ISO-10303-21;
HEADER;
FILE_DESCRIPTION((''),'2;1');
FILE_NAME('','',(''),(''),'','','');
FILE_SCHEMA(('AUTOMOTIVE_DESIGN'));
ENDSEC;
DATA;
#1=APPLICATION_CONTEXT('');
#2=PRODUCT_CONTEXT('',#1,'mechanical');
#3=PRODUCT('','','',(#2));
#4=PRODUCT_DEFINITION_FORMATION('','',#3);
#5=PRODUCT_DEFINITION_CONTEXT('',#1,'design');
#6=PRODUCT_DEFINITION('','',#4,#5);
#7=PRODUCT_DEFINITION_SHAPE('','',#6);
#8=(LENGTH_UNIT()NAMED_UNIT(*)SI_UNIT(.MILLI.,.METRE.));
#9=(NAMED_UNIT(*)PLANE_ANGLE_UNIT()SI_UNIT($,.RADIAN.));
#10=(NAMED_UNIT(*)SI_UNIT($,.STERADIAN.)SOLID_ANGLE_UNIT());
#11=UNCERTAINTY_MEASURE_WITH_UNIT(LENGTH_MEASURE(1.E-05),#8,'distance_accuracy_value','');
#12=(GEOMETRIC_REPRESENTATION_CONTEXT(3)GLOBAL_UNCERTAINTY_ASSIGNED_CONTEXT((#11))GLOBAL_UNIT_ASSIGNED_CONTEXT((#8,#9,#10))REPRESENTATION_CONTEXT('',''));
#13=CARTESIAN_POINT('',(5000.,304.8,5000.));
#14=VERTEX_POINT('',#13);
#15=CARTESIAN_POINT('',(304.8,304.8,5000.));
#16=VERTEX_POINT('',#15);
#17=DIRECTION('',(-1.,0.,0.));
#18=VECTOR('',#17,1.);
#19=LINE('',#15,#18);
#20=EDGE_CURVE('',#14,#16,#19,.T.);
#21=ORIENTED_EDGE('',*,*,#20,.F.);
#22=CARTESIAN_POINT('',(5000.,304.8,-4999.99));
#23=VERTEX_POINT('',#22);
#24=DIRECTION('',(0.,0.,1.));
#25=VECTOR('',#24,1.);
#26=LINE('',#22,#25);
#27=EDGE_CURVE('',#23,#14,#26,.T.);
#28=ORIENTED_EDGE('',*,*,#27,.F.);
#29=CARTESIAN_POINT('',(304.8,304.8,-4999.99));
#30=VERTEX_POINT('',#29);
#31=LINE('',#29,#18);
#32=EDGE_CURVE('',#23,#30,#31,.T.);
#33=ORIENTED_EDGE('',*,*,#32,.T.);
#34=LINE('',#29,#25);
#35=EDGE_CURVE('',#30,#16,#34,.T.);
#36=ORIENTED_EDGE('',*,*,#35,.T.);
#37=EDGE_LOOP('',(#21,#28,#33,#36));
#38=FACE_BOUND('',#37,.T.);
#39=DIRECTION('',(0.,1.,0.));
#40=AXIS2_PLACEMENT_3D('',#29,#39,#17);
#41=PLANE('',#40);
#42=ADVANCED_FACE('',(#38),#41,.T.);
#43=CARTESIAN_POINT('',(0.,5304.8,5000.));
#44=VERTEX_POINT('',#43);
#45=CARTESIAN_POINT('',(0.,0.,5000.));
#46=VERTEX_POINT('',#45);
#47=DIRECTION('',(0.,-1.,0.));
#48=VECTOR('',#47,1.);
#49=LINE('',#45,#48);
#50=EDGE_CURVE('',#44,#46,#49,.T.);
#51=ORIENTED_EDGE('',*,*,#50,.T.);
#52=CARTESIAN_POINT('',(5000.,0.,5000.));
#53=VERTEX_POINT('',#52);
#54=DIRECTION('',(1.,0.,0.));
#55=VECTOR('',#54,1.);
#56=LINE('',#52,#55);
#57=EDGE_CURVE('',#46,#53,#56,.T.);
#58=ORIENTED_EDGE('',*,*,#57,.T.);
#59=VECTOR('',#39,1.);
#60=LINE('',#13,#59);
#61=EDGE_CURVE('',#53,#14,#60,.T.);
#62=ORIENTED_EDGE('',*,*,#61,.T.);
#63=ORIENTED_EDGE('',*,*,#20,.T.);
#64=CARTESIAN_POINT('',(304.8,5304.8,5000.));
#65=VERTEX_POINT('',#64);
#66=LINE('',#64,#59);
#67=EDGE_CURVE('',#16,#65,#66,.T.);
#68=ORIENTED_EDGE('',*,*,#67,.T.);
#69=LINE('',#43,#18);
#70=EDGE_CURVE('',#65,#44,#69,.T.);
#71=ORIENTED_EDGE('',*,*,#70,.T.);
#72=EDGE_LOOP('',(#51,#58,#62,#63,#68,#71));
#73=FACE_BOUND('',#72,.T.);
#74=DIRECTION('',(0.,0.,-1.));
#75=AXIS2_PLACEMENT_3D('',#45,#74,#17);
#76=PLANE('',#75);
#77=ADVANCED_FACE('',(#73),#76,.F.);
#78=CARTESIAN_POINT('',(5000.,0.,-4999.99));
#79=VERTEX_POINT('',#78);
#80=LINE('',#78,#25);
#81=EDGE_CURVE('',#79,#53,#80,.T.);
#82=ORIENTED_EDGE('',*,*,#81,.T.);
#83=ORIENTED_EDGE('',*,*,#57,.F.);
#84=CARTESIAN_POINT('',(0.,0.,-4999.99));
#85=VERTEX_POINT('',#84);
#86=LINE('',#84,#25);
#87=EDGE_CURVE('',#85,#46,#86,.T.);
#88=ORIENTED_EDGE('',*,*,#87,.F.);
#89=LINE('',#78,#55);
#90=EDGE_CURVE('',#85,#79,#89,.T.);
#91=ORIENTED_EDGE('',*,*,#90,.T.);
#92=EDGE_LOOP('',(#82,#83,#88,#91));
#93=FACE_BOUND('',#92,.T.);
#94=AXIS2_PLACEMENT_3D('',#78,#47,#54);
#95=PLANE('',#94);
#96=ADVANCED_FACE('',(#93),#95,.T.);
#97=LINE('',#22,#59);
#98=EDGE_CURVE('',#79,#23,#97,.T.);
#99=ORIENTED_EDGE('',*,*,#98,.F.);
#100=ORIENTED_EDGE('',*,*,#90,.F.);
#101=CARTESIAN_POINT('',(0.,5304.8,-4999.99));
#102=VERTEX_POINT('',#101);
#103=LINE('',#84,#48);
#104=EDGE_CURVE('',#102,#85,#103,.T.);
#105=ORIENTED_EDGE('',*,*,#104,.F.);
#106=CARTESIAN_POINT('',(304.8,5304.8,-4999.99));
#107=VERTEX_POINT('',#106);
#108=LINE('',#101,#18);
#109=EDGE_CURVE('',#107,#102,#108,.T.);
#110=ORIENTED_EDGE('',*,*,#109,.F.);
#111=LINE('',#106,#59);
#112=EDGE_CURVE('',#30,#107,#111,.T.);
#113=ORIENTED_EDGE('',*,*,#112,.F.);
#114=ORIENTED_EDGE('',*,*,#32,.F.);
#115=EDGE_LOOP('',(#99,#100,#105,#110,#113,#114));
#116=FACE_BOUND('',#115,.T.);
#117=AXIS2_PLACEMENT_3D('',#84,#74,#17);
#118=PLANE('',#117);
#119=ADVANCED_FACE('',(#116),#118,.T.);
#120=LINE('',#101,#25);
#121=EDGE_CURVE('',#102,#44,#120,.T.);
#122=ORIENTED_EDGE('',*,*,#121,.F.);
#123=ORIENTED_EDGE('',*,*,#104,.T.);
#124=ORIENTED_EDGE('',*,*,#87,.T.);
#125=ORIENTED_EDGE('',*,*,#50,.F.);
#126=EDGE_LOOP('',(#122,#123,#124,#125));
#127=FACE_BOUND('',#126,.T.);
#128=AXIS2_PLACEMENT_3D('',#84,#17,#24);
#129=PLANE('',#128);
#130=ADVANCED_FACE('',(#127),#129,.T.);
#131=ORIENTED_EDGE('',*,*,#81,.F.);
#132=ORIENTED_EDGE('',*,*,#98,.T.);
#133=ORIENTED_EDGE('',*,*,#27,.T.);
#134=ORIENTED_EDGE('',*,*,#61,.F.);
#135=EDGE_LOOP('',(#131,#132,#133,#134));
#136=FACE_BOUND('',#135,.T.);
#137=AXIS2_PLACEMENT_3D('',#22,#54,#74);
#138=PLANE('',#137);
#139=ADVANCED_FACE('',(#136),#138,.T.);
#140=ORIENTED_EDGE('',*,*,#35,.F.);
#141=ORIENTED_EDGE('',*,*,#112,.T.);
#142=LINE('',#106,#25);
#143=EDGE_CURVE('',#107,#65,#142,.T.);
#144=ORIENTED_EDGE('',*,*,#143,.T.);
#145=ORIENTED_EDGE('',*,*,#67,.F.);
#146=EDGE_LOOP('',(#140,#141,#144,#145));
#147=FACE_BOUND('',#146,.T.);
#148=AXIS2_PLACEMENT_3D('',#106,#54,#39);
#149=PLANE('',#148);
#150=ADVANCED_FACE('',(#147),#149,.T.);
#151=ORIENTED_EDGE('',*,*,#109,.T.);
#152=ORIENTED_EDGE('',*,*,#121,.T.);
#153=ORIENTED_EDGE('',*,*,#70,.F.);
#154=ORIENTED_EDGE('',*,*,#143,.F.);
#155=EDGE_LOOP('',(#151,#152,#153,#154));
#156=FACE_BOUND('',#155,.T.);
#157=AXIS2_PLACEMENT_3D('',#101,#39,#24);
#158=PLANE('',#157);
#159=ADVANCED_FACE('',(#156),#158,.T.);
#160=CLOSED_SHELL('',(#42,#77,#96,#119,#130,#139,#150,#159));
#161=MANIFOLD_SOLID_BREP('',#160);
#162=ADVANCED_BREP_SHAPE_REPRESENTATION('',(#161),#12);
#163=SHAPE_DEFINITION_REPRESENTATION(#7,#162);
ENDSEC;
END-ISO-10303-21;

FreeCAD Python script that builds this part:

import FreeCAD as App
import Part
import Sketcher
from FreeCAD import Vector

doc = App.newDocument("Part")
body = doc.addObject("PartDesign::Body", "Body")

sketch1 = body.newObject("Sketcher::SketchObject", "Sketch")
sketch1.AttachmentSupport = (doc.getObject("XY_Plane"), [""])
sketch1.MapMode = "FlatFace"
sketch1.addGeometry(Part.LineSegment(Vector(0, 5305, 0), Vector(0, 0, 0)), False)
sketch1.addGeometry(Part.LineSegment(Vector(0, 0, 0), Vector(5000, 0, 0)), False)
sketch1.addGeometry(Part.LineSegment(Vector(5000, 0, 0), Vector(5000, 305, 0)), False)
sketch1.addGeometry(Part.LineSegment(Vector(5000, 305, 0), Vector(305, 305, 0)), False)
sketch1.addGeometry(Part.LineSegment(Vector(305, 305, 0), Vector(305, 5305, 0)), False)
sketch1.addGeometry(Part.LineSegment(Vector(305, 5305, 0), Vector(0, 5305, 0)), False)
sketch1.addConstraint(Sketcher.Constraint("Coincident", 0, 2, 1, 1))
sketch1.addConstraint(Sketcher.Constraint("Coincident", 1, 2, 2, 1))
sketch1.addConstraint(Sketcher.Constraint("Coincident", 2, 2, 3, 1))
sketch1.addConstraint(Sketcher.Constraint("Coincident", 3, 2, 4, 1))
sketch1.addConstraint(Sketcher.Constraint("Coincident", 4, 2, 5, 1))
sketch1.addConstraint(Sketcher.Constraint("Coincident", 5, 2, 0, 1))
sketch1.addConstraint(Sketcher.Constraint("Vertical", 0))
sketch1.addConstraint(Sketcher.Constraint("Horizontal", 1))
sketch1.addConstraint(Sketcher.Constraint("Vertical", 2))
sketch1.addConstraint(Sketcher.Constraint("Horizontal", 3))
sketch1.addConstraint(Sketcher.Constraint("Vertical", 4))
sketch1.addConstraint(Sketcher.Constraint("Horizontal", 5))
sketch1.addConstraint(Sketcher.Constraint("Coincident", 0, 2, -1, 1))
sketch1.addConstraint(Sketcher.Constraint("Equal", 5, 2))
sketch1.addConstraint(Sketcher.Constraint("Equal", 1, 4))
sketch1.addConstraint(Sketcher.Constraint("DistanceX", 1, 1, 1, 2, 5000.0))
sketch1.addConstraint(Sketcher.Constraint("DistanceX", 3, 2, 3, 1, 4695.2))
pad1 = body.newObject("PartDesign::Pad", "Pad")
pad1.Profile = sketch1
pad1.Type = "TwoLengths"
pad1.Length = 5000
pad1.Length2 = 4999.99

doc.recompute()
